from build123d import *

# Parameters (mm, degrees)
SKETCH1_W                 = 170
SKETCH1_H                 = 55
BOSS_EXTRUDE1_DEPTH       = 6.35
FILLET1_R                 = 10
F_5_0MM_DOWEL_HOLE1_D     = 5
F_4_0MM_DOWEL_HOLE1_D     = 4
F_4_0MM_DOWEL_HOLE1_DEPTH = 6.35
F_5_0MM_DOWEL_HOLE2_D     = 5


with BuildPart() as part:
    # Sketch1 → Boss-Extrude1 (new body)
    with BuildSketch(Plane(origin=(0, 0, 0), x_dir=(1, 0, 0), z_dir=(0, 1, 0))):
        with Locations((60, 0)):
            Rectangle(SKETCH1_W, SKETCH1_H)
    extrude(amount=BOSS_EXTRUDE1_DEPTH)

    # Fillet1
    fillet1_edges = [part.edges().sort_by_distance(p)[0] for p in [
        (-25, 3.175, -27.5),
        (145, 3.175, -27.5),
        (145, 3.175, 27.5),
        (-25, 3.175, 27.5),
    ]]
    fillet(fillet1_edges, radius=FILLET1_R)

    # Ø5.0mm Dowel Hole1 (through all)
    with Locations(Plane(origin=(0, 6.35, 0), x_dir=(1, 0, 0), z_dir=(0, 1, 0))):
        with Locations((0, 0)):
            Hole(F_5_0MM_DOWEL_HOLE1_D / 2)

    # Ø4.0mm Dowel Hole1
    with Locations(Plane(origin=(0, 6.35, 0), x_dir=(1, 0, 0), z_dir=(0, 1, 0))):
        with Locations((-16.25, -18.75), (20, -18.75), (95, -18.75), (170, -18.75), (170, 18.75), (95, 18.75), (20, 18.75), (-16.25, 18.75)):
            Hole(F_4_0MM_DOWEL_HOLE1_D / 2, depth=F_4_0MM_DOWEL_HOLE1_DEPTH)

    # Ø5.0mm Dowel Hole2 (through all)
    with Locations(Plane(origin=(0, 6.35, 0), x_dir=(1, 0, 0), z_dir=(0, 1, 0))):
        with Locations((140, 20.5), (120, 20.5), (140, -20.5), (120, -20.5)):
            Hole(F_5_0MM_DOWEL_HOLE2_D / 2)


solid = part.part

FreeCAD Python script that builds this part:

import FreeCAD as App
import Part
import Sketcher

V = App.Vector


def edges_at(feature, points):
    """Names of the edges that pass closest to the given points."""
    edges = feature.Shape.Edges
    near = lambda p: min(range(len(edges)), key=lambda i: edges[i].distToShape(Part.Vertex(*p))[0])
    return sorted({f"Edge{near(p) + 1}" for p in points})


def add_polygon(sketch, points):
    """Adds a closed chain of lines whose ends are joined by coincident constraints."""
    first, n = sketch.GeometryCount, len(points)
    for a, b in zip(points, points[1:] + points[:1]):
        sketch.addGeometry(Part.LineSegment(App.Vector(*a, 0), App.Vector(*b, 0)), False)
    for i in range(n):
        sketch.addConstraint(Sketcher.Constraint("Coincident", first + i, 2, first + (i + 1) % n, 1))

doc = App.newDocument("Part")
params = doc.addObject("Spreadsheet::Sheet", "Params")
for row, (alias, value) in enumerate([
    ("sketch1_width", "170 mm"),
    ("sketch1_height", "55 mm"),
    ("pad1_length", "6.35 mm"),
    ("fillet_radius", "10 mm"),
    ("sketch2_diameter", "5 mm"),
    ("hole_diameter", "5 mm"),
    ("sketch3_diameter", "4 mm"),
    ("hole2_diameter", "4 mm"),
    ("hole2_depth", "6.35 mm"),
    ("sketch4_diameter", "5 mm"),
    ("hole3_diameter", "5 mm"),
], start=1):
    params.set(f"A{row}", alias)
    params.set(f"B{row}", "=" + value)
    params.setAlias(f"B{row}", alias)

body = doc.addObject("PartDesign::Body", "Body")

# Sketch on XZ plane
sketch1 = doc.addObject("Sketcher::SketchObject", "Sketch")
body.addObject(sketch1)
sketch1.AttachmentSupport = (doc.XZ_Plane, [""])
sketch1.MapMode = "FlatFace"
add_polygon(sketch1, [(-25, -28), (-25, 28), (145, 28), (145, -28)])  # lines 0-3
sketch1.addConstraint(Sketcher.Constraint("Vertical", 0))
sketch1.addConstraint(Sketcher.Constraint("Horizontal", 1))
sketch1.addConstraint(Sketcher.Constraint("Vertical", 2))
sketch1.addConstraint(Sketcher.Constraint("Horizontal", 3))
sketch1.addConstraint(Sketcher.Constraint("DistanceX", 1, 1, 1, 2, 170.0))
sketch1.addConstraint(Sketcher.Constraint("DistanceY", 0, 1, 0, 2, 55.0))
sketch1.addConstraint(Sketcher.Constraint("DistanceX", 0, 2, -1, 1, 25.0))
sketch1.addConstraint(Sketcher.Constraint("DistanceY", -1, 1, 0, 2, 27.5))
sketch1.setExpression("Constraints[8]", "Params.sketch1_width")
sketch1.setExpression("Constraints[9]", "Params.sketch1_height")
pad1 = doc.addObject("PartDesign::Pad", "Pad")
body.addObject(pad1)
pad1.Profile = sketch1
pad1.setExpression("Length", "Params.pad1_length")
pad1.Reversed = True
doc.recompute()

fillet = doc.addObject("PartDesign::Fillet", "Fillet")
body.addObject(fillet)
fillet.Base = (pad1, edges_at(pad1, [
    (-25, 3.175, -27.5),
    (145, 3.175, -27.5),
    (145, 3.175, 27.5),
    (-25, 3.175, 27.5),
]))
fillet.setExpression("Radius", "Params.fillet_radius")

# Sketch on XZ plane
sketch2 = doc.addObject("Sketcher::SketchObject", "Sketch001")
body.addObject(sketch2)
sketch2.AttachmentSupport = (doc.XZ_Plane, [""])
sketch2.MapMode = "FlatFace"
sketch2.AttachmentOffset = App.Placement(V(0, 0, -6.35), App.Rotation())
sketch2.addGeometry(Part.Circle(V(0, 0, 0), V(0, 0, 1), 2.5), False)
sketch2.addConstraint(Sketcher.Constraint("Coincident", 0, 3, -1, 1))
sketch2.addConstraint(Sketcher.Constraint("Diameter", 0, 5.0))
sketch2.setExpression("Constraints[1]", "Params.sketch2_diameter")
doc.recompute()
hole = doc.addObject("PartDesign::Hole", "Hole")
body.addObject(hole)
hole.Profile = sketch2
hole.ThreadType = "None"
hole.setExpression("Diameter", "Params.hole_diameter")
hole.DepthType = "ThroughAll"
hole.Reversed = True

# Sketch on XZ plane
sketch3 = doc.addObject("Sketcher::SketchObject", "Sketch002")
body.addObject(sketch3)
sketch3.AttachmentSupport = (doc.XZ_Plane, [""])
sketch3.MapMode = "FlatFace"
sketch3.AttachmentOffset = App.Placement(V(0, 0, -6.35), App.Rotation())
sketch3.addGeometry(Part.Circle(V(-16.2, 18.8, 0), V(0, 0, 1), 2), False)
sketch3.addGeometry(Part.Circle(V(20, 18.8, 0), V(0, 0, 1), 2), False)
sketch3.addGeometry(Part.Circle(V(95, 18.8, 0), V(0, 0, 1), 2), False)
sketch3.addGeometry(Part.Circle(V(170, 18.8, 0), V(0, 0, 1), 2), False)
sketch3.addGeometry(Part.Circle(V(170, -18.8, 0), V(0, 0, 1), 2), False)
sketch3.addGeometry(Part.Circle(V(95, -18.8, 0), V(0, 0, 1), 2), False)
sketch3.addGeometry(Part.Circle(V(20, -18.8, 0), V(0, 0, 1), 2), False)
sketch3.addGeometry(Part.Circle(V(-16.2, -18.8, 0), V(0, 0, 1), 2), False)
sketch3.addConstraint(Sketcher.Constraint("Equal", 0, 1))
sketch3.addConstraint(Sketcher.Constraint("Equal", 1, 2))
sketch3.addConstraint(Sketcher.Constraint("Equal", 2, 3))
sketch3.addConstraint(Sketcher.Constraint("Equal", 3, 4))
sketch3.addConstraint(Sketcher.Constraint("Equal", 4, 5))
sketch3.addConstraint(Sketcher.Constraint("Equal", 5, 6))
sketch3.addConstraint(Sketcher.Constraint("Equal", 6, 7))
sketch3.addConstraint(Sketcher.Constraint("Symmetric", 3, 3, 4, 3, -1))
sketch3.addConstraint(Sketcher.Constraint("Symmetric", 2, 3, 5, 3, -1))
sketch3.addConstraint(Sketcher.Constraint("Symmetric", 1, 3, 6, 3, -1))
sketch3.addConstraint(Sketcher.Constraint("Symmetric", 0, 3, 7, 3, -1))
sketch3.addConstraint(Sketcher.Constraint("Horizontal", 0, 3, 1, 3))
sketch3.addConstraint(Sketcher.Constraint("Horizontal", 1, 3, 2, 3))
sketch3.addConstraint(Sketcher.Constraint("Horizontal", 2, 3, 3, 3))
sketch3.addConstraint(Sketcher.Constraint("Diameter", 0, 4.0))
sketch3.addConstraint(Sketcher.Constraint("DistanceX", -1, 1, 1, 3, 20.0))
sketch3.addConstraint(Sketcher.Constraint("DistanceX", -1, 1, 2, 3, 95.0))
sketch3.addConstraint(Sketcher.Constraint("DistanceX", -1, 1, 3, 3, 170.0))
sketch3.addConstraint(Sketcher.Constraint("DistanceY", 4, 3, 3, 3, 37.5))
sketch3.addConstraint(Sketcher.Constraint("DistanceX", 0, 3, -1, 1, 16.25))
sketch3.setExpression("Constraints[14]", "Params.sketch3_diameter")
doc.recompute()
hole2 = doc.addObject("PartDesign::Hole", "Hole001")
body.addObject(hole2)
hole2.Profile = sketch3
hole2.ThreadType = "None"
hole2.setExpression("Diameter", "Params.hole2_diameter")
hole2.DepthType = "Dimension"
hole2.setExpression("Depth", "Params.hole2_depth")
hole2.DrillPoint = "Flat"
hole2.Reversed = True

# Sketch on XZ plane
sketch4 = doc.addObject("Sketcher::SketchObject", "Sketch003")
body.addObject(sketch4)
sketch4.AttachmentSupport = (doc.XZ_Plane, [""])
sketch4.MapMode = "FlatFace"
sketch4.AttachmentOffset = App.Placement(V(0, 0, -6.35), App.Rotation())
sketch4.addGeometry(Part.Circle(V(140, -20.5, 0), V(0, 0, 1), 2.5), False)
sketch4.addGeometry(Part.Circle(V(120, -20.5, 0), V(0, 0, 1), 2.5), False)
sketch4.addGeometry(Part.Circle(V(140, 20.5, 0), V(0, 0, 1), 2.5), False)
sketch4.addGeometry(Part.Circle(V(120, 20.5, 0), V(0, 0, 1), 2.5), False)
sketch4.addConstraint(Sketcher.Constraint("Equal", 0, 1))
sketch4.addConstraint(Sketcher.Constraint("Equal", 1, 2))
sketch4.addConstraint(Sketcher.Constraint("Equal", 2, 3))
sketch4.addConstraint(Sketcher.Constraint("Symmetric", 0, 3, 2, 3, -1))
sketch4.addConstraint(Sketcher.Constraint("Symmetric", 1, 3, 3, 3, -1))
sketch4.addConstraint(Sketcher.Constraint("Horizontal", 0, 3, 1, 3))
sketch4.addConstraint(Sketcher.Constraint("Diameter", 0, 5.0))
sketch4.addConstraint(Sketcher.Constraint("DistanceX", -1, 1, 0, 3, 140.0))
sketch4.addConstraint(Sketcher.Constraint("DistanceX", -1, 1, 1, 3, 120.0))
sketch4.addConstraint(Sketcher.Constraint("DistanceY", 0, 3, 2, 3, 41.0))
sketch4.setExpression("Constraints[6]", "Params.sketch4_diameter")
doc.recompute()
hole3 = doc.addObject("PartDesign::Hole", "Hole002")
body.addObject(hole3)
hole3.Profile = sketch4
hole3.ThreadType = "None"
hole3.setExpression("Diameter", "Params.hole3_diameter")
hole3.DepthType = "ThroughAll"
hole3.Reversed = True

doc.recompute()
